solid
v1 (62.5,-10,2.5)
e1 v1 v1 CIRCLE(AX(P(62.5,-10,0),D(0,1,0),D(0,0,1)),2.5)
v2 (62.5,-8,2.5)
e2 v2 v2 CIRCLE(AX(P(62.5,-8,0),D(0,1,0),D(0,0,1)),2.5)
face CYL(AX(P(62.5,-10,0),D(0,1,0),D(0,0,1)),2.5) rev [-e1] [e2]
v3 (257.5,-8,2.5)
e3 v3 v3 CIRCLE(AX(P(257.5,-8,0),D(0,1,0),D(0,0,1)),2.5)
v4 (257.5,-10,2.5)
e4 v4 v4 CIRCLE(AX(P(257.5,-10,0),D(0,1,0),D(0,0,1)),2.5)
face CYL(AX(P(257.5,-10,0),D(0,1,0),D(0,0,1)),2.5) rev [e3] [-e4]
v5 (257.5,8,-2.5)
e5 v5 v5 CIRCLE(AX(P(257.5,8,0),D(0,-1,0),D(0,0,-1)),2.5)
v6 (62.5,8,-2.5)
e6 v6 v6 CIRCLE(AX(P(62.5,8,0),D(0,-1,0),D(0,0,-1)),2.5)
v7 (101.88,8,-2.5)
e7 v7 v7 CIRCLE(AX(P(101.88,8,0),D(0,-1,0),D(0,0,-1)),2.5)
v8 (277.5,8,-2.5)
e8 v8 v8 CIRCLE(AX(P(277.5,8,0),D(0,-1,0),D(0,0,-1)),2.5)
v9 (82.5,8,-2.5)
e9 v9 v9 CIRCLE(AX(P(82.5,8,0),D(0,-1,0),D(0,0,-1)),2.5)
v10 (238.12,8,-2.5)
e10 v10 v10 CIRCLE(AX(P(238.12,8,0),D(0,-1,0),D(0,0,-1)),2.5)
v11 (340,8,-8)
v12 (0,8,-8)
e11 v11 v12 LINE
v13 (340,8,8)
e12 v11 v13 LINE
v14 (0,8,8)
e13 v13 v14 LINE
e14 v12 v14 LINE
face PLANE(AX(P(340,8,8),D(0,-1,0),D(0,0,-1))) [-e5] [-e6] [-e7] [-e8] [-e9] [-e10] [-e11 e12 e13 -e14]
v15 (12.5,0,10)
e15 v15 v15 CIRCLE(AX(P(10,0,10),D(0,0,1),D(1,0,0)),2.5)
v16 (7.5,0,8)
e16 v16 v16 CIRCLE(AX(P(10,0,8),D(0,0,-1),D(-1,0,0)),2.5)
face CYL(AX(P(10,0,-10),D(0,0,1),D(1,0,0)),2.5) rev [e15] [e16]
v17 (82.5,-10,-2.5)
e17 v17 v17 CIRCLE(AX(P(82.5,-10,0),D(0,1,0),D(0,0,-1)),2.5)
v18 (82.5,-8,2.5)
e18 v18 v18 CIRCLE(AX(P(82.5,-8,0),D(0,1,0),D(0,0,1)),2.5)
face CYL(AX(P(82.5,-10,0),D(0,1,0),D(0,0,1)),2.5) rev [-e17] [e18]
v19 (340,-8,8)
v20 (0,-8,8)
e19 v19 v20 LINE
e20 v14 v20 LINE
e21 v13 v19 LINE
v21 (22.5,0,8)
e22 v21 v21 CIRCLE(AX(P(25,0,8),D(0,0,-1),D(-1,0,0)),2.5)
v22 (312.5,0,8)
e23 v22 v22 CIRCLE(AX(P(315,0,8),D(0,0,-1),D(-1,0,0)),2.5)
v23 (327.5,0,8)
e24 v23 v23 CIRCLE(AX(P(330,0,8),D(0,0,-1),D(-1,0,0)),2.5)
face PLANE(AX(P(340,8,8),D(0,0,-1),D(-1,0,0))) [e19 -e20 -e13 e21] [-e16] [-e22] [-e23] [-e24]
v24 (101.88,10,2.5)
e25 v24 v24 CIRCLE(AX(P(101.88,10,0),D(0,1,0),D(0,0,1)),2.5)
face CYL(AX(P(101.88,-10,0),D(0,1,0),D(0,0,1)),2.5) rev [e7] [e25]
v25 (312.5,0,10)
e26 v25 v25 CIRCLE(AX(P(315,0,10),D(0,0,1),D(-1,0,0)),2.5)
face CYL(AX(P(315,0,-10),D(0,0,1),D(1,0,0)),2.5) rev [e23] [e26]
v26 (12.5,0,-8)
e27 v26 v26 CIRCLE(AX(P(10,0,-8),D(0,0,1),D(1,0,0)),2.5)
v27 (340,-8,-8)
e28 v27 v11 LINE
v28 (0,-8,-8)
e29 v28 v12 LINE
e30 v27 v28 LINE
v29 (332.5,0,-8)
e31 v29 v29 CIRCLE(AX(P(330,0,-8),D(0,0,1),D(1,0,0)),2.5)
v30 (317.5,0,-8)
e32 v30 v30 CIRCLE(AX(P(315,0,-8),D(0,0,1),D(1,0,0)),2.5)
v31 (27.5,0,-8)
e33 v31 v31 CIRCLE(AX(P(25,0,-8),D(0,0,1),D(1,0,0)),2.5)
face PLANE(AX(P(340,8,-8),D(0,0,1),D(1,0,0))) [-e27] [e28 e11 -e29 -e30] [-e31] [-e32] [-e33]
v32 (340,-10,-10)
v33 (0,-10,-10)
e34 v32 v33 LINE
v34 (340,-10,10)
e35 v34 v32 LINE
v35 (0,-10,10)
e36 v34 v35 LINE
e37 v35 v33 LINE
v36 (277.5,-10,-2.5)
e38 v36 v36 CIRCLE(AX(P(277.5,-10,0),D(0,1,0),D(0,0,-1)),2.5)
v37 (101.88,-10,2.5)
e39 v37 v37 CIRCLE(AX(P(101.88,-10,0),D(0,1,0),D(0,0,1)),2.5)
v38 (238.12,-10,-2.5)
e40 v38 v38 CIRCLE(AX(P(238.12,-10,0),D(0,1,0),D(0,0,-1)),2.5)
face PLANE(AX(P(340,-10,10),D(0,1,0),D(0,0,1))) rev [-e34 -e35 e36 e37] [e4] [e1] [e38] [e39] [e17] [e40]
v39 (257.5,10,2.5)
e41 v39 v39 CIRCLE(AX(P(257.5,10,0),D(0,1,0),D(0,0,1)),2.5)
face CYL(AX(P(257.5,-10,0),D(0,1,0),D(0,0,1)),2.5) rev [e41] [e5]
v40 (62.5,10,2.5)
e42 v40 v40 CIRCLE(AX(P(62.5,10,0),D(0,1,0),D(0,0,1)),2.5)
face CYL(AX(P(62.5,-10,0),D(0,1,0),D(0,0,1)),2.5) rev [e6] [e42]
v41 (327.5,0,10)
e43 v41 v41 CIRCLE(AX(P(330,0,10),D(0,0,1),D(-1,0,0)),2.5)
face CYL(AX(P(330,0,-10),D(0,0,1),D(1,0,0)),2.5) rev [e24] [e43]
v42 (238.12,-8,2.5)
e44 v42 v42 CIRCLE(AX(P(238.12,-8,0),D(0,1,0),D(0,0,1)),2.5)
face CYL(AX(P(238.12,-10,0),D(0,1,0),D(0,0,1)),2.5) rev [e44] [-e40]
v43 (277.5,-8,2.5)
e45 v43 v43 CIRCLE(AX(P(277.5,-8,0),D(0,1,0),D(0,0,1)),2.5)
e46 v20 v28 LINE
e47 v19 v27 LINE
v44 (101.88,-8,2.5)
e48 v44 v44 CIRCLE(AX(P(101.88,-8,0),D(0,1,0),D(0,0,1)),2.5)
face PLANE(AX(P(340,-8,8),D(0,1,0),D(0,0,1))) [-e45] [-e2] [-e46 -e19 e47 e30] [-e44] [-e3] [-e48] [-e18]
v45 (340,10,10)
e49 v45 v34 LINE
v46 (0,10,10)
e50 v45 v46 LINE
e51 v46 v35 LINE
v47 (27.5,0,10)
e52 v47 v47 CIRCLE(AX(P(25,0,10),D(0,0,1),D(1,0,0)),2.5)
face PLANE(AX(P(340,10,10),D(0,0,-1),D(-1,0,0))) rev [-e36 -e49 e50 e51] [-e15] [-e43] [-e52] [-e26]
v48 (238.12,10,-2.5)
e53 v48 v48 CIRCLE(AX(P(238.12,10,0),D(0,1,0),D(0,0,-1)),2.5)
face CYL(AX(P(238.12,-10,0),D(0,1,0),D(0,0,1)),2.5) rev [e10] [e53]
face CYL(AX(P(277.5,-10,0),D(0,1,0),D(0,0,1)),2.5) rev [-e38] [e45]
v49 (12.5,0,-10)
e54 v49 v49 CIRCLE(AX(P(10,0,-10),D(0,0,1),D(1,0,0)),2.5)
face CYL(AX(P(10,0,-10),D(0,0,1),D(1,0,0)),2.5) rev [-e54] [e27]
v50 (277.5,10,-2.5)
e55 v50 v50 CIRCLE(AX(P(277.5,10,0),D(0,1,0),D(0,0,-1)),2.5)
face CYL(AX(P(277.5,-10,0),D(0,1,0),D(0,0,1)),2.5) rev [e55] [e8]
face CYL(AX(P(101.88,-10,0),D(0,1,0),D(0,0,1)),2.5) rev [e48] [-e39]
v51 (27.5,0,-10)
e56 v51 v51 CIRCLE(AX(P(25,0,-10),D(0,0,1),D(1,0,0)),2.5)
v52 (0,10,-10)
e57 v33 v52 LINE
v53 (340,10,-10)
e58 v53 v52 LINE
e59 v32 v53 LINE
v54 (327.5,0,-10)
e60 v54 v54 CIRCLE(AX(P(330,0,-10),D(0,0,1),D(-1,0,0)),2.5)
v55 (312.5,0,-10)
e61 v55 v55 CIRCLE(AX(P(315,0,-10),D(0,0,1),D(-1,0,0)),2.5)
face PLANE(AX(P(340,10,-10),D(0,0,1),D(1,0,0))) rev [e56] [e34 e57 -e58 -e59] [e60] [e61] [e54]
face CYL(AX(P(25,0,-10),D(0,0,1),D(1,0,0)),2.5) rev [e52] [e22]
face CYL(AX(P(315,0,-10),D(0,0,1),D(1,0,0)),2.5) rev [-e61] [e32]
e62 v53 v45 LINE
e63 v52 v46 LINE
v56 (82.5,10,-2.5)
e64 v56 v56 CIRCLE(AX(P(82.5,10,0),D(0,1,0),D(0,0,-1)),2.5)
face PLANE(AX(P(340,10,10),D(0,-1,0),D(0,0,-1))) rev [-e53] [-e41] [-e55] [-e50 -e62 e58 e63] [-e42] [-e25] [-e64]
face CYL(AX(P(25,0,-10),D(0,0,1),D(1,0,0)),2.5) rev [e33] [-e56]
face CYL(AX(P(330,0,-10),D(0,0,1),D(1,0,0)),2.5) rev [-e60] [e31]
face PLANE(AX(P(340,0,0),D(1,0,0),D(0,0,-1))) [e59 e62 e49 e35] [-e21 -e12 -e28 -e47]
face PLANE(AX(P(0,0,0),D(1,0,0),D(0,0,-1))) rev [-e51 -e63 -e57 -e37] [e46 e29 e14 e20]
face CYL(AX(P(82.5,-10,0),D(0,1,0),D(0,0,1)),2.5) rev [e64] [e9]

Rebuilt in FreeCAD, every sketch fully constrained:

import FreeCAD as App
import Part
import Sketcher

V = App.Vector
Q = App.Units.Quantity

doc = App.newDocument("Part")
body = doc.addObject("PartDesign::Body", "Body")

# Sketch on YZ plane
sketch1 = body.newObject("Sketcher::SketchObject", "Sketch")
sketch1.AttachmentSupport = (doc.getObject("YZ_Plane"), [""])
sketch1.MapMode = "FlatFace"
sketch1.addGeometry(Part.LineSegment(V(10, 10, 0), V(-10, 10, 0)), False)
sketch1.addGeometry(Part.LineSegment(V(-10, 10, 0), V(-10, -10, 0)), False)
sketch1.addGeometry(Part.LineSegment(V(-10, -10, 0), V(10, -10, 0)), False)
sketch1.addGeometry(Part.LineSegment(V(10, -10, 0), V(10, 10, 0)), False)
sketch1.addGeometry(Part.LineSegment(V(-8, -8, 0), V(-8, 8, 0)), False)
sketch1.addGeometry(Part.LineSegment(V(-8, 8, 0), V(8, 8, 0)), False)
sketch1.addGeometry(Part.LineSegment(V(8, 8, 0), V(8, -8, 0)), False)
sketch1.addGeometry(Part.LineSegment(V(8, -8, 0), V(-8, -8, 0)), False)
sketch1.addConstraint(Sketcher.Constraint("Coincident", 0, 2, 1, 1))
sketch1.addConstraint(Sketcher.Constraint("Coincident", 1, 2, 2, 1))
sketch1.addConstraint(Sketcher.Constraint("Coincident", 2, 2, 3, 1))
sketch1.addConstraint(Sketcher.Constraint("Coincident", 3, 2, 0, 1))
sketch1.addConstraint(Sketcher.Constraint("Coincident", 4, 2, 5, 1))
sketch1.addConstraint(Sketcher.Constraint("Coincident", 5, 2, 6, 1))
sketch1.addConstraint(Sketcher.Constraint("Coincident", 6, 2, 7, 1))
sketch1.addConstraint(Sketcher.Constraint("Coincident", 7, 2, 4, 1))
sketch1.addConstraint(Sketcher.Constraint("Horizontal", 0))
sketch1.addConstraint(Sketcher.Constraint("Vertical", 1))
sketch1.addConstraint(Sketcher.Constraint("Horizontal", 2))
sketch1.addConstraint(Sketcher.Constraint("Vertical", 3))
sketch1.addConstraint(Sketcher.Constraint("Vertical", 4))
sketch1.addConstraint(Sketcher.Constraint("Horizontal", 5))
sketch1.addConstraint(Sketcher.Constraint("Vertical", 6))
sketch1.addConstraint(Sketcher.Constraint("Horizontal", 7))
sketch1.addConstraint(Sketcher.Constraint("Symmetric", 0, 2, 2, 2, -1, 1))
sketch1.addConstraint(Sketcher.Constraint("Symmetric", 4, 2, 6, 2, -1, 1))
sketch1.addConstraint(Sketcher.Constraint("Equal", 2, 1))
sketch1.addConstraint(Sketcher.Constraint("Equal", 7, 4))
sketch1.addConstraint(Sketcher.Constraint("DistanceX", 0, 2, 0, 1, Q("20 mm")))
sketch1.addConstraint(Sketcher.Constraint("DistanceX", 5, 1, 5, 2, Q("16 mm")))
pad1 = body.newObject("PartDesign::Pad", "Pad")
pad1.Profile = sketch1
pad1.Length = 340

# Sketch on XY plane
sketch2 = body.newObject("Sketcher::SketchObject", "Sketch001")
sketch2.AttachmentSupport = (doc.getObject("XY_Plane"), [""])
sketch2.MapMode = "FlatFace"
sketch2.AttachmentOffset = App.Placement(V(0, 0, 10), App.Rotation())
sketch2.addGeometry(Part.Circle(V(10, 0, 0), V(0, 0, 1), 2.5), False)
sketch2.addGeometry(Part.Circle(V(25, 0, 0), V(0, 0, 1), 2.5), False)
sketch2.addGeometry(Part.Circle(V(315, 0, 0), V(0, 0, 1), 2.5), False)
sketch2.addGeometry(Part.Circle(V(330, 0, 0), V(0, 0, 1), 2.5), False)
sketch2.addConstraint(Sketcher.Constraint("Equal", 0, 1))
sketch2.addConstraint(Sketcher.Constraint("Equal", 1, 2))
sketch2.addConstraint(Sketcher.Constraint("Equal", 2, 3))
sketch2.addConstraint(Sketcher.Constraint("PointOnObject", 0, 3, -1))
sketch2.addConstraint(Sketcher.Constraint("PointOnObject", 1, 3, -1))
sketch2.addConstraint(Sketcher.Constraint("PointOnObject", 2, 3, -1))
sketch2.addConstraint(Sketcher.Constraint("PointOnObject", 3, 3, -1))
sketch2.addConstraint(Sketcher.Constraint("Diameter", 0, Q("5 mm")))
sketch2.addConstraint(Sketcher.Constraint("DistanceX", -1, 1, 0, 3, Q("10 mm")))
sketch2.addConstraint(Sketcher.Constraint("DistanceX", -1, 1, 1, 3, Q("25 mm")))
sketch2.addConstraint(Sketcher.Constraint("DistanceX", -1, 1, 2, 3, Q("315 mm")))
sketch2.addConstraint(Sketcher.Constraint("DistanceX", -1, 1, 3, 3, Q("330 mm")))
pocket1 = body.newObject("PartDesign::Pocket", "Pocket")
pocket1.Profile = sketch2
pocket1.Type = "ThroughAll"

# Sketch on XZ plane
sketch3 = body.newObject("Sketcher::SketchObject", "Sketch002")
sketch3.AttachmentSupport = (doc.getObject("XZ_Plane"), [""])
sketch3.MapMode = "FlatFace"
sketch3.AttachmentOffset = App.Placement(V(0, 0, -10), App.Rotation())
sketch3.addGeometry(Part.Circle(V(62.5, 0, 0), V(0, 0, 1), 2.5), False)
sketch3.addGeometry(Part.Circle(V(82.5, 0, 0), V(0, 0, 1), 2.5), False)
sketch3.addGeometry(Part.Circle(V(257.5, 0, 0), V(0, 0, 1), 2.5), False)
sketch3.addGeometry(Part.Circle(V(277.5, 0, 0), V(0, 0, 1), 2.5), False)
sketch3.addConstraint(Sketcher.Constraint("Equal", 0, 1))
sketch3.addConstraint(Sketcher.Constraint("Equal", 1, 2))
sketch3.addConstraint(Sketcher.Constraint("Equal", 2, 3))
sketch3.addConstraint(Sketcher.Constraint("PointOnObject", 0, 3, -1))
sketch3.addConstraint(Sketcher.Constraint("PointOnObject", 1, 3, -1))
sketch3.addConstraint(Sketcher.Constraint("PointOnObject", 2, 3, -1))
sketch3.addConstraint(Sketcher.Constraint("PointOnObject", 3, 3, -1))
sketch3.addConstraint(Sketcher.Constraint("Diameter", 0, Q("5 mm")))
sketch3.addConstraint(Sketcher.Constraint("DistanceX", 0, 3, 1, 3, Q("20 mm")))
sketch3.addConstraint(Sketcher.Constraint("DistanceX", 1, 3, 2, 3, Q("175 mm")))
sketch3.addConstraint(Sketcher.Constraint("DistanceX", 2, 3, 3, 3, Q("20 mm")))
sketch3.addConstraint(Sketcher.Constraint("DistanceX", -1, 1, 0, 3, Q("62.5 mm")))
pocket2 = body.newObject("PartDesign::Pocket", "Pocket001")
pocket2.Profile = sketch3
pocket2.Type = "ThroughAll"
pocket2.Reversed = True

# Sketch on XZ plane
sketch4 = body.newObject("Sketcher::SketchObject", "Sketch003")
sketch4.AttachmentSupport = (doc.getObject("XZ_Plane"), [""])
sketch4.MapMode = "FlatFace"
sketch4.AttachmentOffset = App.Placement(V(0, 0, -10), App.Rotation())
sketch4.addGeometry(Part.Circle(V(101.88, 0, 0), V(0, 0, 1), 2.5), False)
sketch4.addGeometry(Part.Circle(V(238.12, 0, 0), V(0, 0, 1), 2.5), False)
sketch4.addConstraint(Sketcher.Constraint("Equal", 0, 1))
sketch4.addConstraint(Sketcher.Constraint("PointOnObject", 0, 3, -1))
sketch4.addConstraint(Sketcher.Constraint("PointOnObject", 1, 3, -1))
sketch4.addConstraint(Sketcher.Constraint("Diameter", 0, Q("5 mm")))
sketch4.addConstraint(Sketcher.Constraint("DistanceX", -1, 1, 0, 3, Q("101.88 mm")))
sketch4.addConstraint(Sketcher.Constraint("DistanceX", -1, 1, 1, 3, Q("238.12 mm")))
pocket3 = body.newObject("PartDesign::Pocket", "Pocket002")
pocket3.Profile = sketch4
pocket3.Type = "ThroughAll"
pocket3.Reversed = True

doc.recompute()
